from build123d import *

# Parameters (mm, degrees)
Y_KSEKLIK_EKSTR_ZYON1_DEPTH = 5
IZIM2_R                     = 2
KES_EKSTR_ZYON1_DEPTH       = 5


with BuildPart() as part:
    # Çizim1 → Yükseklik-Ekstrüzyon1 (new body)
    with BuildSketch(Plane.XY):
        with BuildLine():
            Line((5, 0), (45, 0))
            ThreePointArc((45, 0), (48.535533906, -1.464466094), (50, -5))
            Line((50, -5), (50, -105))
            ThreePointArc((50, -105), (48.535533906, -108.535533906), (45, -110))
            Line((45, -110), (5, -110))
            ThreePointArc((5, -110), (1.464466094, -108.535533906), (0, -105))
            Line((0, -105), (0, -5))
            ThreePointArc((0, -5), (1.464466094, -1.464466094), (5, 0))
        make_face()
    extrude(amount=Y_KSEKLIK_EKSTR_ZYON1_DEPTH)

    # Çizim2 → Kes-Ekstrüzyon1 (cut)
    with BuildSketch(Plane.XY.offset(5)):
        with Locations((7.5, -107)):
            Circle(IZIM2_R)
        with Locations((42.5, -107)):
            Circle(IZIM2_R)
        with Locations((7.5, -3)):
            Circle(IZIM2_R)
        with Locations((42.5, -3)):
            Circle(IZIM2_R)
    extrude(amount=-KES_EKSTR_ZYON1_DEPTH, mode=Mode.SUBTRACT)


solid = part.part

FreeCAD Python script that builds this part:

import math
import FreeCAD as App
import Part
import Sketcher
Q = App.Units.Quantity

doc = App.newDocument("Part")
body = doc.addObject("PartDesign::Body", "Body")

sketch1 = doc.addObject("Sketcher::SketchObject", "Sketch")
body.addObject(sketch1)
sketch1.AttachmentSupport = (doc.XY_Plane, [""])
sketch1.MapMode = "FlatFace"
sketch1.addGeometry([
    Part.LineSegment(App.Vector(45, 0, 0), App.Vector(5, 0, 0)),
    Part.ArcOfCircle(Part.Circle(App.Vector(5, -5, 0), App.Vector(0, 0, 1), 5), math.radians(90), math.radians(180)),
    Part.LineSegment(App.Vector(0, -5, 0), App.Vector(0, -105, 0)),
    Part.ArcOfCircle(Part.Circle(App.Vector(5, -105, 0), App.Vector(0, 0, 1), 5), math.radians(180), math.radians(270)),
    Part.LineSegment(App.Vector(5, -110, 0), App.Vector(45, -110, 0)),
    Part.ArcOfCircle(Part.Circle(App.Vector(45, -105, 0), App.Vector(0, 0, 1), 5), math.radians(-90), math.radians(0)),
    Part.LineSegment(App.Vector(50, -105, 0), App.Vector(50, -5, 0)),
    Part.ArcOfCircle(Part.Circle(App.Vector(45, -5, 0), App.Vector(0, 0, 1), 5), math.radians(0), math.radians(90)),
], False)
sketch1.addConstraint([
    Sketcher.Constraint("Tangent", 0, 2, 1, 1),
    Sketcher.Constraint("Tangent", 1, 2, 2, 1),
    Sketcher.Constraint("Tangent", 2, 2, 3, 1),
    Sketcher.Constraint("Tangent", 3, 2, 4, 1),
    Sketcher.Constraint("Tangent", 4, 2, 5, 1),
    Sketcher.Constraint("Tangent", 5, 2, 6, 1),
    Sketcher.Constraint("Tangent", 6, 2, 7, 1),
    Sketcher.Constraint("Tangent", 7, 2, 0, 1),
    Sketcher.Constraint("Horizontal", 0),
    Sketcher.Constraint("Vertical", 2),
    Sketcher.Constraint("Horizontal", 4),
    Sketcher.Constraint("Vertical", 6),
    Sketcher.Constraint("Equal", 1, 3),
    Sketcher.Constraint("Equal", 3, 5),
    Sketcher.Constraint("Equal", 5, 7),
    Sketcher.Constraint("PointOnObject", 0, 2, -1),
    Sketcher.Constraint("PointOnObject", 1, 2, -2),
    Sketcher.Constraint("Radius", 1, Q("5 mm")),
    Sketcher.Constraint("DistanceX", 0, 2, 0, 1, Q("40 mm")),
    Sketcher.Constraint("DistanceY", 2, 2, 2, 1, Q("100 mm")),
])
pad1 = doc.addObject("PartDesign::Pad", "Pad")
body.addObject(pad1)
pad1.Profile = sketch1
pad1.Length = 5

sketch2 = doc.addObject("Sketcher::SketchObject", "Sketch001")
body.addObject(sketch2)
sketch2.AttachmentSupport = (doc.XY_Plane, [""])
sketch2.MapMode = "FlatFace"
sketch2.AttachmentOffset = App.Placement(App.Vector(0, 0, 5), App.Rotation())
sketch2.addGeometry([
    Part.Circle(App.Vector(7.5, -107, 0), App.Vector(0, 0, 1), 2),
    Part.Circle(App.Vector(42.5, -107, 0), App.Vector(0, 0, 1), 2),
    Part.Circle(App.Vector(7.5, -3, 0), App.Vector(0, 0, 1), 2),
    Part.Circle(App.Vector(42.5, -3, 0), App.Vector(0, 0, 1), 2),
], False)
sketch2.addConstraint([
    Sketcher.Constraint("Equal", 0, 1),
    Sketcher.Constraint("Equal", 1, 2),
    Sketcher.Constraint("Equal", 2, 3),
    Sketcher.Constraint("Horizontal", 0, 3, 1, 3),
    Sketcher.Constraint("Horizontal", 2, 3, 3, 3),
    Sketcher.Constraint("Vertical", 0, 3, 2, 3),
    Sketcher.Constraint("Vertical", 1, 3, 3, 3),
    Sketcher.Constraint("Diameter", 0, Q("4 mm")),
    Sketcher.Constraint("DistanceY", 0, 3, -1, 1, Q("107 mm")),
    Sketcher.Constraint("DistanceY", 2, 3, -1, 1, Q("3 mm")),
    Sketcher.Constraint("DistanceX", 0, 3, 1, 3, Q("35 mm")),
    Sketcher.Constraint("DistanceX", -1, 1, 0, 3, Q("7.5 mm")),
])
pocket1 = doc.addObject("PartDesign::Pocket", "Pocket")
body.addObject(pocket1)
pocket1.Profile = sketch2
pocket1.Length = 5

doc.recompute()
